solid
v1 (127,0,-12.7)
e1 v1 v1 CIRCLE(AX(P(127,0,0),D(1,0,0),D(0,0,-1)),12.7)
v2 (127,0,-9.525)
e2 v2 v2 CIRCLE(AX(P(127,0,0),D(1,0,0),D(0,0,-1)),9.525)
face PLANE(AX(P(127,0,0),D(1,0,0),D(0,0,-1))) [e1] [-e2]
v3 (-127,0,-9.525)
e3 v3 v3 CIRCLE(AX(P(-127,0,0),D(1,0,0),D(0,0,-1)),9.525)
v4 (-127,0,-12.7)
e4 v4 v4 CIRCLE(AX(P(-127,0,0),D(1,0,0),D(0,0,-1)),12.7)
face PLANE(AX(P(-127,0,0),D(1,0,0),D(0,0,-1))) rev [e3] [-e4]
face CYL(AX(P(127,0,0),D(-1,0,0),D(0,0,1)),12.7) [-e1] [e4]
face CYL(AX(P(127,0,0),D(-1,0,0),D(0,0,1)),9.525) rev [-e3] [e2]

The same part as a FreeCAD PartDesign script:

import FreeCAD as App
import Part
import Sketcher
Q = App.Units.Quantity

doc = App.newDocument("Part")
body = doc.addObject("PartDesign::Body", "Body")

# Sketch on YZ plane
sketch1 = body.newObject("Sketcher::SketchObject", "Sketch")
sketch1.AttachmentSupport = (doc.getObject("YZ_Plane"), [""])
sketch1.MapMode = "FlatFace"
sketch1.addGeometry(Part.Circle(App.Vector(0, 0, 0), App.Vector(0, 0, 1), 13), False)
sketch1.addGeometry(Part.Circle(App.Vector(0, 0, 0), App.Vector(0, 0, 1), 10), False)
sketch1.addConstraint(Sketcher.Constraint("Coincident", 0, 3, -1, 1))
sketch1.addConstraint(Sketcher.Constraint("Coincident", 1, 3, -1, 1))
sketch1.addConstraint(Sketcher.Constraint("Diameter", 0, Q("1 in")))
sketch1.addConstraint(Sketcher.Constraint("Diameter", 1, Q("0.75 in")))
pad1 = body.newObject("PartDesign::Pad", "Pad")
pad1.Profile = sketch1
pad1.Length = Q("10 in")
pad1.Midplane = True

doc.recompute()
